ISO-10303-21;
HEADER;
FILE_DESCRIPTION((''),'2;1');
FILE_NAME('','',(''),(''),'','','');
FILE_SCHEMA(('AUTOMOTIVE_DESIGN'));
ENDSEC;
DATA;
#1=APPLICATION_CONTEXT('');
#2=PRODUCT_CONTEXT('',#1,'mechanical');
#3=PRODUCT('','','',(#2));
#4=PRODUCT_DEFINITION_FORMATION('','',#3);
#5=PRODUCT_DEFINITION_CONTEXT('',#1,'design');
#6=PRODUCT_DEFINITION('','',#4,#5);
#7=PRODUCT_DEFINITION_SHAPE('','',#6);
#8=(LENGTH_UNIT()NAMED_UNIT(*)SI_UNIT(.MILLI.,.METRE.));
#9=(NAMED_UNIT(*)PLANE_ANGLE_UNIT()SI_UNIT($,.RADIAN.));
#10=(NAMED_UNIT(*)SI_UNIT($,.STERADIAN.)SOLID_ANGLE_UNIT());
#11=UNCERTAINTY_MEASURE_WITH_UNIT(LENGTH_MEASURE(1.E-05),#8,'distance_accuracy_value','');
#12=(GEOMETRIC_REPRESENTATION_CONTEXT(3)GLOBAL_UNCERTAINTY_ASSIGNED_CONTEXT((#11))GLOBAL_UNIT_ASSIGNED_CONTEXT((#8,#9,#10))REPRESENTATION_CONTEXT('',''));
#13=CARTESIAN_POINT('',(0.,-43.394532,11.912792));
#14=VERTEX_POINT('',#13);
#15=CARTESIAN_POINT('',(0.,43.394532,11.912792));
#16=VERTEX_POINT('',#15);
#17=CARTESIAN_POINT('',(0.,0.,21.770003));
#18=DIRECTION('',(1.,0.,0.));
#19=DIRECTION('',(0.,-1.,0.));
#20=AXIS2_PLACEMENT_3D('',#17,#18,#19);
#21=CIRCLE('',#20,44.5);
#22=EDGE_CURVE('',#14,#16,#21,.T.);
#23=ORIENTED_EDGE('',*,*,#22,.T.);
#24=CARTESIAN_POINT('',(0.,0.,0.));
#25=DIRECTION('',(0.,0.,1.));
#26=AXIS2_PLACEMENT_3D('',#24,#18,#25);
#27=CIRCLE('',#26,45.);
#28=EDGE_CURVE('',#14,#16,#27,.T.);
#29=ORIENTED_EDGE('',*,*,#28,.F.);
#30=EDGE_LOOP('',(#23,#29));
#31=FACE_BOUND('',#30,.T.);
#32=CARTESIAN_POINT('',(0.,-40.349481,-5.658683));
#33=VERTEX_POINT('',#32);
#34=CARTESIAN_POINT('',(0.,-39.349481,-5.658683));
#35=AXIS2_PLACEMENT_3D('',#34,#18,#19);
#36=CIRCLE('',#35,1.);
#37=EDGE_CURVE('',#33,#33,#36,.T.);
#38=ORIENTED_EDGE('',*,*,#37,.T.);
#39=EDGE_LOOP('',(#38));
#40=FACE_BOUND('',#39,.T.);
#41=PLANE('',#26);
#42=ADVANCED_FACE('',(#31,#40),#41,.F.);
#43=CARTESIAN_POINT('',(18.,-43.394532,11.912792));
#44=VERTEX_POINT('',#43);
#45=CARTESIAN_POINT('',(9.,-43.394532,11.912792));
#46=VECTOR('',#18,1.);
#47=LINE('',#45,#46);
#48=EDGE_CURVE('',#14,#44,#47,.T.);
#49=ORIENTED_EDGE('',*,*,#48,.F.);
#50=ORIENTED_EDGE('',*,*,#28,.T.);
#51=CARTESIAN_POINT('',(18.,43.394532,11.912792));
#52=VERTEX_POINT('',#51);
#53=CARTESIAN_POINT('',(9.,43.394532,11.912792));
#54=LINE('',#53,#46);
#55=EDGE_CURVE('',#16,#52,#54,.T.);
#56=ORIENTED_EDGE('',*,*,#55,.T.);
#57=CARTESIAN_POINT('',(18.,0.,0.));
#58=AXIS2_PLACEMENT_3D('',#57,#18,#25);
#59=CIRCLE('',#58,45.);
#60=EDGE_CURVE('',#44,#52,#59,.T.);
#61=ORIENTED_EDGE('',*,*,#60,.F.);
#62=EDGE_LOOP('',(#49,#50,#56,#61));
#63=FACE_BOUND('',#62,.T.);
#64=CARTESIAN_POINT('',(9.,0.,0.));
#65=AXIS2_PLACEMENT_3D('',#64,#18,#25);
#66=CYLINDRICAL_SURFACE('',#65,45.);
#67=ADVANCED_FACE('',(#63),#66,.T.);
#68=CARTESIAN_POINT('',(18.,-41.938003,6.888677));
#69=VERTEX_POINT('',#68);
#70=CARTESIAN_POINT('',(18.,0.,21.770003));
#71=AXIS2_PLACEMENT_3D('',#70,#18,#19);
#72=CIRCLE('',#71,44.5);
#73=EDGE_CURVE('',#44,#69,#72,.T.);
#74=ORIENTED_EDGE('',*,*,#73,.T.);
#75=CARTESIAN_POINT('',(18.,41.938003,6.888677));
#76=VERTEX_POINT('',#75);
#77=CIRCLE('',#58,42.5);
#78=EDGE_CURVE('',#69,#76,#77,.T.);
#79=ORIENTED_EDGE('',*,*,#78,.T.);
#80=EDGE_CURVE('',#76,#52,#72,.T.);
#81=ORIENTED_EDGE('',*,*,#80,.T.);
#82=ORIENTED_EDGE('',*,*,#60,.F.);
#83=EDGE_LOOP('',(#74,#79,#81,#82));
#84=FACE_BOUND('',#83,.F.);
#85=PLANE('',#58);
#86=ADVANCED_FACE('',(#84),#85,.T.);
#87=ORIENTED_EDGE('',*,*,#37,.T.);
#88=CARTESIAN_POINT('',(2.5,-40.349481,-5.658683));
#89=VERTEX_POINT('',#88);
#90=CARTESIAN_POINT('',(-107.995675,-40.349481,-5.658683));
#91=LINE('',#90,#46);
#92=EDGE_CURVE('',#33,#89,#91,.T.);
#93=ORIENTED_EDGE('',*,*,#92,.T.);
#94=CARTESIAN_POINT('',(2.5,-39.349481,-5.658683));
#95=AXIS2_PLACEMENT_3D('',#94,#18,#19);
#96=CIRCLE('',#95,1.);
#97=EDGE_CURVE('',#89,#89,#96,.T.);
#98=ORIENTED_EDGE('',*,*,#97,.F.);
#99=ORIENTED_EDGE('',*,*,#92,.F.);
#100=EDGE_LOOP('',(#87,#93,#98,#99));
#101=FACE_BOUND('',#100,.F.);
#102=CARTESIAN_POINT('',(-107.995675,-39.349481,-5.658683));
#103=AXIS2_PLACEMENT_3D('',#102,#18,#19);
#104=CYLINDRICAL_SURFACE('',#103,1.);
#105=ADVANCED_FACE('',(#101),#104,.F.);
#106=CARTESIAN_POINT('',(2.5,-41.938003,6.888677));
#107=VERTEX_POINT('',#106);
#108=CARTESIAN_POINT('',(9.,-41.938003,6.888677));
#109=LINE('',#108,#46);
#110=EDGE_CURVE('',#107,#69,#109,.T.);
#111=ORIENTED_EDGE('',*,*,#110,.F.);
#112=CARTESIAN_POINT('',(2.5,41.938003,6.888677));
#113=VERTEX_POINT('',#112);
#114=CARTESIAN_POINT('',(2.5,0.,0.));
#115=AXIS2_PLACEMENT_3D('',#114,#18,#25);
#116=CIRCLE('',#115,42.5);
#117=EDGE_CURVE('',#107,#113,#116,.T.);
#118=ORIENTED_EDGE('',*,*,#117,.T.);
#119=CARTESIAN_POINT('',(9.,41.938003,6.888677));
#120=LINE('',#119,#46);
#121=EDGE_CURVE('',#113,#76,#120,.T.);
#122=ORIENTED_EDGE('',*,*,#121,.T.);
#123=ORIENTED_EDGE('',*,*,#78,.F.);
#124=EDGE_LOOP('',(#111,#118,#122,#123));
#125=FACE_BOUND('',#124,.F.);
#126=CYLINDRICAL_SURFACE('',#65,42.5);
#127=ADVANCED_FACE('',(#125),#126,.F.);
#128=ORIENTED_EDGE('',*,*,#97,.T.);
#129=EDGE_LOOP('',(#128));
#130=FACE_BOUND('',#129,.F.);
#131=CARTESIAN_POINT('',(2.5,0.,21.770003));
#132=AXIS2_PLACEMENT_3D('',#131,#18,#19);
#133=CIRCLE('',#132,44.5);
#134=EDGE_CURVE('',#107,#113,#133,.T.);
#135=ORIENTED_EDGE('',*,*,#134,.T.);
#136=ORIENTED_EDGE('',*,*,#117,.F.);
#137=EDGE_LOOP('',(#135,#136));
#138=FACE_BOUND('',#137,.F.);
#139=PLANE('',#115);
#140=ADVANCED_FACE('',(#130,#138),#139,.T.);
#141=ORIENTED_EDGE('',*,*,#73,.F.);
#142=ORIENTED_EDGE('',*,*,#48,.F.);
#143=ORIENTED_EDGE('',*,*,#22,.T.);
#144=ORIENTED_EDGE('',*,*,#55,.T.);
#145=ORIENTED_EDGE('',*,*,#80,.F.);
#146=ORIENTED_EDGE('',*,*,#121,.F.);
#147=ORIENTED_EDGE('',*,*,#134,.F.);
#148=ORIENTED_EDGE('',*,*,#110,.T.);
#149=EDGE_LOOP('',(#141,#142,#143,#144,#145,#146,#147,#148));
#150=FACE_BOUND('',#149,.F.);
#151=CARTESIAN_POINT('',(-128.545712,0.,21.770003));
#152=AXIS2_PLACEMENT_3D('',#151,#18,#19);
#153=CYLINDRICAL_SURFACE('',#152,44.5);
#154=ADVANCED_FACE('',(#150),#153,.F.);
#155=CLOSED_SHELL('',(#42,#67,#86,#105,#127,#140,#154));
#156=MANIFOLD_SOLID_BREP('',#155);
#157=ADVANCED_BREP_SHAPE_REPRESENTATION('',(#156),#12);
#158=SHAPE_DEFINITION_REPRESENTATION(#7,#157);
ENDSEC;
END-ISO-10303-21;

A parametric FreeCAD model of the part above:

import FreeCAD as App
import Part
import Sketcher

V = App.Vector
Q = App.Units.Quantity


def faces_at(feature, points):
    """Names of the faces that lie closest to the given points."""
    faces = feature.Shape.Faces
    near = lambda p: min(range(len(faces)), key=lambda i: faces[i].distToShape(Part.Vertex(*p))[0])
    return sorted({f"Face{near(p) + 1}" for p in points})


def add_polygon(sketch, points):
    """Adds a closed chain of lines whose ends are joined by coincident constraints."""
    first, n = sketch.GeometryCount, len(points)
    for a, b in zip(points, points[1:] + points[:1]):
        sketch.addGeometry(Part.LineSegment(App.Vector(*a, 0), App.Vector(*b, 0)), False)
    for i in range(n):
        sketch.addConstraint(Sketcher.Constraint("Coincident", first + i, 2, first + (i + 1) % n, 1))

doc = App.newDocument("Part")
params = doc.addObject("Spreadsheet::Sheet", "Params")
for row, (alias, value) in enumerate([
    ("sketch1_width", "18 mm"),
    ("sketch1_height", "45 mm"),
    ("revolution_angle", "360 deg"),
    ("sketch2_diameter", "6 mm"),
    ("hole_diameter", "6 mm"),
    ("thickness_wall", "2.5 mm"),
    ("sketch3_diameter", "89 mm"),
    ("hole2_diameter", "89 mm"),
    ("sketch4_diameter", "2 mm"),
    ("hole3_diameter", "2 mm"),
], start=1):
    params.set(f"A{row}", alias)
    params.set(f"B{row}", "=" + value)
    params.setAlias(f"B{row}", alias)

body = doc.addObject("PartDesign::Body", "Body")

# Sketch on XZ plane
sketch1 = doc.addObject("Sketcher::SketchObject", "Sketch")
body.addObject(sketch1)
sketch1.AttachmentSupport = (doc.XZ_Plane, [""])
sketch1.MapMode = "FlatFace"
add_polygon(sketch1, [(0, 45), (0, 0), (18, 0), (18, 45)])  # lines 0-3
sketch1.addConstraint([
    Sketcher.Constraint("Vertical", 0),
    Sketcher.Constraint("Horizontal", 1),
    Sketcher.Constraint("Vertical", 2),
    Sketcher.Constraint("Horizontal", 3),
    Sketcher.Constraint("Coincident", 0, 2, -1, 1),
    Sketcher.Constraint("DistanceX", 1, 1, 1, 2, Q("18 mm")),
    Sketcher.Constraint("DistanceY", 0, 2, 0, 1, Q("45 mm")),
])
sketch1.setExpression("Constraints[9]", "Params.sketch1_width")
sketch1.setExpression("Constraints[10]", "Params.sketch1_height")
revolution = doc.addObject("PartDesign::Revolution", "Revolution")
body.addObject(revolution)
revolution.Profile = sketch1
revolution.ReferenceAxis = (sketch1, ["H_Axis"])
revolution.setExpression("Angle", "Params.revolution_angle")

# Sketch on YZ plane
sketch2 = doc.addObject("Sketcher::SketchObject", "Sketch001")
body.addObject(sketch2)
sketch2.AttachmentSupport = (doc.YZ_Plane, [""])
sketch2.MapMode = "FlatFace"
sketch2.addGeometry(Part.Circle(V(0, 0, 0), V(0, 0, 1), 3), False)
sketch2.addConstraint([
    Sketcher.Constraint("Coincident", 0, 3, -1, 1),
    Sketcher.Constraint("Diameter", 0, Q("6 mm")),
])
sketch2.setExpression("Constraints[1]", "Params.sketch2_diameter")
doc.recompute()
hole = doc.addObject("PartDesign::Hole", "Hole")
body.addObject(hole)
hole.Profile = sketch2
hole.ThreadType = "None"
hole.setExpression("Diameter", "Params.hole_diameter")
hole.DepthType = "ThroughAll"
hole.Reversed = True
doc.recompute()

thickness = doc.addObject("PartDesign::Thickness", "Thickness")
body.addObject(thickness)
thickness.Base = (hole, faces_at(hole, [(18, 18, 18)]))
thickness.setExpression("Value", "Params.thickness_wall")
thickness.Reversed = True
thickness.Join = "Arc"

# Sketch on YZ plane
sketch3 = doc.addObject("Sketcher::SketchObject", "Sketch002")
body.addObject(sketch3)
sketch3.AttachmentSupport = (doc.YZ_Plane, [""])
sketch3.MapMode = "FlatFace"
sketch3.addGeometry(Part.Circle(V(0, 22, 0), V(0, 0, 1), 44), False)
sketch3.addConstraint([
    Sketcher.Constraint("PointOnObject", 0, 3, -2),
    Sketcher.Constraint("Diameter", 0, Q("89 mm")),
    Sketcher.Constraint("DistanceY", -1, 1, 0, 3, Q("21.770003 mm")),
])
sketch3.setExpression("Constraints[1]", "Params.sketch3_diameter")
doc.recompute()
hole2 = doc.addObject("PartDesign::Hole", "Hole001")
body.addObject(hole2)
hole2.Profile = sketch3
hole2.ThreadType = "None"
hole2.setExpression("Diameter", "Params.hole2_diameter")
hole2.DepthType = "ThroughAll"
hole2.Reversed = True

# Sketch on YZ plane
sketch4 = doc.addObject("Sketcher::SketchObject", "Sketch003")
body.addObject(sketch4)
sketch4.AttachmentSupport = (doc.YZ_Plane, [""])
sketch4.MapMode = "FlatFace"
sketch4.addGeometry(Part.Circle(V(-39.3, -5.7, 0), V(0, 0, 1), 1), False)
sketch4.addConstraint([
    Sketcher.Constraint("Diameter", 0, Q("2 mm")),
    Sketcher.Constraint("DistanceX", 0, 3, -1, 1, Q("39.349481 mm")),
    Sketcher.Constraint("DistanceY", 0, 3, -1, 1, Q("5.658683 mm")),
])
sketch4.setExpression("Constraints[0]", "Params.sketch4_diameter")
doc.recompute()
hole3 = doc.addObject("PartDesign::Hole", "Hole002")
body.addObject(hole3)
hole3.Profile = sketch4
hole3.ThreadType = "None"
hole3.setExpression("Diameter", "Params.hole3_diameter")
hole3.DepthType = "ThroughAll"
hole3.Reversed = True

doc.recompute()
